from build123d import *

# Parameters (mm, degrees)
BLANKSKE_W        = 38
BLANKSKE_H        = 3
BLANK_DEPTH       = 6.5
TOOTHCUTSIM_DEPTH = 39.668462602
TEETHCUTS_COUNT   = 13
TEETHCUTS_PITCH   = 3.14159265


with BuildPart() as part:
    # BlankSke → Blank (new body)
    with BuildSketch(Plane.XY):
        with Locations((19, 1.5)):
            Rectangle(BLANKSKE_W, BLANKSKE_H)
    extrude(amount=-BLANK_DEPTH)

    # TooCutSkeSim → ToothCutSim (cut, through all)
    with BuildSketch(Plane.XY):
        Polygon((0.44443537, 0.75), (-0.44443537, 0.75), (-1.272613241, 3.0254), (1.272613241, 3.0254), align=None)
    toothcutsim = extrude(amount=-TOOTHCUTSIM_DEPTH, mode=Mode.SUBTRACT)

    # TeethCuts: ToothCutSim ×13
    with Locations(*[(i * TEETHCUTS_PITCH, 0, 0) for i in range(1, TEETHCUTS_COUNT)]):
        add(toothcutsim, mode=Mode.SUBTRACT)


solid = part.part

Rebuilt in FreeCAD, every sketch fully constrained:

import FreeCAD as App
import Part
import Sketcher
from FreeCAD import Vector
Q = App.Units.Quantity

doc = App.newDocument("Part")
body = doc.addObject("PartDesign::Body", "Body")

# Sketch on XY plane
sketch1 = body.newObject("Sketcher::SketchObject", "Sketch")
sketch1.AttachmentSupport = (doc.getObject("XY_Plane"), [""])
sketch1.MapMode = "FlatFace"
sketch1.addGeometry(Part.LineSegment(Vector(0, 3, 0), Vector(0, 0, 0)), False)
sketch1.addGeometry(Part.LineSegment(Vector(0, 0, 0), Vector(38, 0, 0)), False)
sketch1.addGeometry(Part.LineSegment(Vector(38, 0, 0), Vector(38, 3, 0)), False)
sketch1.addGeometry(Part.LineSegment(Vector(38, 3, 0), Vector(0, 3, 0)), False)
sketch1.addConstraint(Sketcher.Constraint("Coincident", 0, 2, 1, 1))
sketch1.addConstraint(Sketcher.Constraint("Coincident", 1, 2, 2, 1))
sketch1.addConstraint(Sketcher.Constraint("Coincident", 2, 2, 3, 1))
sketch1.addConstraint(Sketcher.Constraint("Coincident", 3, 2, 0, 1))
sketch1.addConstraint(Sketcher.Constraint("Vertical", 0))
sketch1.addConstraint(Sketcher.Constraint("Horizontal", 1))
sketch1.addConstraint(Sketcher.Constraint("Vertical", 2))
sketch1.addConstraint(Sketcher.Constraint("Horizontal", 3))
sketch1.addConstraint(Sketcher.Constraint("Coincident", 0, 2, -1, 1))
sketch1.addConstraint(Sketcher.Constraint("DistanceX", 1, 1, 1, 2, 38.0))
sketch1.addConstraint(Sketcher.Constraint("DistanceY", 0, 2, 0, 1, 3.0))
pad1 = body.newObject("PartDesign::Pad", "Pad")
pad1.Profile = sketch1
pad1.Length = 6.5
pad1.Reversed = True

# Sketch on XY plane
sketch2 = body.newObject("Sketcher::SketchObject", "Sketch001")
sketch2.AttachmentSupport = (doc.getObject("XY_Plane"), [""])
sketch2.MapMode = "FlatFace"
sketch2.addGeometry(Part.LineSegment(Vector(-0.444435, 0.75, 0), Vector(0.444435, 0.75, 0)), False)
sketch2.addGeometry(Part.LineSegment(Vector(0.444435, 0.75, 0), Vector(1.272613, 3.0254, 0)), False)
sketch2.addGeometry(Part.LineSegment(Vector(1.272613, 3.0254, 0), Vector(-1.272613, 3.0254, 0)), False)
sketch2.addGeometry(Part.LineSegment(Vector(-1.272613, 3.0254, 0), Vector(-0.444435, 0.75, 0)), False)
sketch2.addConstraint(Sketcher.Constraint("Coincident", 0, 2, 1, 1))
sketch2.addConstraint(Sketcher.Constraint("Coincident", 1, 2, 2, 1))
sketch2.addConstraint(Sketcher.Constraint("Coincident", 2, 2, 3, 1))
sketch2.addConstraint(Sketcher.Constraint("Coincident", 3, 2, 0, 1))
sketch2.addConstraint(Sketcher.Constraint("Horizontal", 0))
sketch2.addConstraint(Sketcher.Constraint("Horizontal", 2))
sketch2.addConstraint(Sketcher.Constraint("Equal", 1, 3))
sketch2.addConstraint(Sketcher.Constraint("Angle", 1, Q("70 deg")))
sketch2.addConstraint(Sketcher.Constraint("DistanceY", -1, 1, 0, 2, 0.75))
sketch2.addConstraint(Sketcher.Constraint("DistanceX", 0, 1, 0, 2, 0.888871))
sketch2.addConstraint(Sketcher.Constraint("DistanceY", -1, 1, 1, 2, 3.0254))
sketch2.addConstraint(Sketcher.Constraint("DistanceX", -1, 1, 0, 2, 0.444435))
pocket1 = body.newObject("PartDesign::Pocket", "Pocket")
pocket1.Profile = sketch2
pocket1.Type = "ThroughAll"
doc.recompute()

linearpattern = body.newObject("PartDesign::LinearPattern", "LinearPattern")
linearpattern.Originals = [pocket1]
linearpattern.Direction = (doc.getObject("X_Axis"), [""])
linearpattern.Mode = "offset"
linearpattern.Offset = 3.141593
linearpattern.Occurrences = 13
body.Tip = linearpattern

doc.recompute()
